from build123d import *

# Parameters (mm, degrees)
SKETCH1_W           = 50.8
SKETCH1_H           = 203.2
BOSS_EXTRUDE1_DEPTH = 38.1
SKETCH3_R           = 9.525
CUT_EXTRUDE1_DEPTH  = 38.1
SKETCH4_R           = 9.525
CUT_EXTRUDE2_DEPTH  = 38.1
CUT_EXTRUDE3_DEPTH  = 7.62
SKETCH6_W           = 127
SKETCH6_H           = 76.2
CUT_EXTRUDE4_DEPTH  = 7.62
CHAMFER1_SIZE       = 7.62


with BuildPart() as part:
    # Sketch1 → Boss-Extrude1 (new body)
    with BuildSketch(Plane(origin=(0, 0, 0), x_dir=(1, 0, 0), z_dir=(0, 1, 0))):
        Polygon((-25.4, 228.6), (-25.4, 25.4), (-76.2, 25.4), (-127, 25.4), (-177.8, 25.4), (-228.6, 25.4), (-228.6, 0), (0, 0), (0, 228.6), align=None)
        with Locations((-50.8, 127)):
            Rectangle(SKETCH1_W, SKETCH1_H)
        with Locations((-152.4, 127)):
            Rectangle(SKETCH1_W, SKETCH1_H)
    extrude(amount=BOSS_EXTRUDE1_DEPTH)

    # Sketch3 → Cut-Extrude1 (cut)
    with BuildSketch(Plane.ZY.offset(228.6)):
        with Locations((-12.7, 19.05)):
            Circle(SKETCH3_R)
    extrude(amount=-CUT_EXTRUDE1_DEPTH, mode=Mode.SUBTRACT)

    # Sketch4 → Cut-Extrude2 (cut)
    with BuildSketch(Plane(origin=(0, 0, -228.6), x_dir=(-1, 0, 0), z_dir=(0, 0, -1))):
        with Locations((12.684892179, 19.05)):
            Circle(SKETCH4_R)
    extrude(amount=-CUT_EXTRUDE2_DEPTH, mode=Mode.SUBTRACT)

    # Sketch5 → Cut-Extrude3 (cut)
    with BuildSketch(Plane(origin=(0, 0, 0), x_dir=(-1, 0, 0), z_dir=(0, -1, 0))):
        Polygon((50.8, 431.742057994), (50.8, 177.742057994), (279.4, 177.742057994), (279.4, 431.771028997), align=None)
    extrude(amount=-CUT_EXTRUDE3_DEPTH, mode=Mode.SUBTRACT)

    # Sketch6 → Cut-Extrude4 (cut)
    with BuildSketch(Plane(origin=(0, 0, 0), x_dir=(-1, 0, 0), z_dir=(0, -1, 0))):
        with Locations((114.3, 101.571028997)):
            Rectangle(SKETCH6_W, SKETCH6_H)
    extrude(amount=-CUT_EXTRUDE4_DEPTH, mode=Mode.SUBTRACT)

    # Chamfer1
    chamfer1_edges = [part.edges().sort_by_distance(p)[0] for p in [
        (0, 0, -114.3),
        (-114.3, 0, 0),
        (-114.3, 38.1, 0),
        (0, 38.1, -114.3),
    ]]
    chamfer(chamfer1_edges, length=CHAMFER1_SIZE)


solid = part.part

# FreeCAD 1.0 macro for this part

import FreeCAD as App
import Part
import Sketcher
from FreeCAD import Vector
Q = App.Units.Quantity


def edges_at(feature, points):
    """Names of the edges that pass closest to the given points."""
    edges = feature.Shape.Edges
    near = lambda p: min(range(len(edges)), key=lambda i: edges[i].distToShape(Part.Vertex(*p))[0])
    return sorted({f"Edge{near(p) + 1}" for p in points})


def add_polygon(sketch, points):
    """Adds a closed chain of lines whose ends are joined by coincident constraints."""
    first, n = sketch.GeometryCount, len(points)
    for a, b in zip(points, points[1:] + points[:1]):
        sketch.addGeometry(Part.LineSegment(App.Vector(*a, 0), App.Vector(*b, 0)), False)
    for i in range(n):
        sketch.addConstraint(Sketcher.Constraint("Coincident", first + i, 2, first + (i + 1) % n, 1))

doc = App.newDocument("Part")
params = doc.addObject("Spreadsheet::Sheet", "Params")
for row, (alias, value) in enumerate([
    ("sketch1_width", "2 in"),
    ("sketch1_width2", "9 in"),
    ("sketch1_height", "8 in"),
    ("pad1_length", "1.5 in"),
    ("sketch2_diameter", "0.75 in"),
    ("pocket1_length", "1.5 in"),
    ("sketch3_diameter", "0.75 in"),
    ("pocket2_length", "1.5 in"),
    ("sketch4_width", "9 in"),
    ("sketch4_height", "10 in"),
    ("pocket3_length", "0.3 in"),
    ("sketch5_width", "5 in"),
    ("sketch5_height", "3 in"),
    ("pocket4_length", "0.3 in"),
    ("chamfer_size", "0.3 in"),
], start=1):
    params.set(f"A{row}", alias)
    params.set(f"B{row}", "=" + value)
    params.setAlias(f"B{row}", alias)

body = doc.addObject("PartDesign::Body", "Body")

# Sketch on XZ plane
sketch1 = body.newObject("Sketcher::SketchObject", "Sketch")
sketch1.AttachmentSupport = (doc.getObject("XZ_Plane"), [""])
sketch1.MapMode = "FlatFace"
add_polygon(sketch1, [(-76, -25), (-127, -25), (-127, -229), (-178, -229), (-178, -25), (-229, -25), (-229, 0), (0, 0), (0, -229), (-76, -229)])  # lines 0-9
sketch1.addConstraint([
    Sketcher.Constraint("Horizontal", 0),
    Sketcher.Constraint("Vertical", 1),
    Sketcher.Constraint("Horizontal", 2),
    Sketcher.Constraint("Vertical", 3),
    Sketcher.Constraint("Horizontal", 4),
    Sketcher.Constraint("Vertical", 5),
    Sketcher.Constraint("Horizontal", 6),
    Sketcher.Constraint("Vertical", 7),
    Sketcher.Constraint("Horizontal", 8),
    Sketcher.Constraint("Vertical", 9),
    Sketcher.Constraint("Coincident", 6, 2, -1, 1),
    Sketcher.Constraint("Horizontal", 0, 2, 3, 2),
    Sketcher.Constraint("Horizontal", 2, 2, 7, 2),
    Sketcher.Constraint("Equal", 0, 2),
    Sketcher.Constraint("Equal", 2, 4),
    Sketcher.Constraint("Equal", 6, 7),
    Sketcher.Constraint("DistanceX", 0, 2, 0, 1, Q("2 in")),
    Sketcher.Constraint("DistanceX", 6, 1, 6, 2, Q("9 in")),
    Sketcher.Constraint("DistanceY", 1, 2, 1, 1, Q("8 in")),
])
sketch1.setExpression("Constraints[26]", "Params.sketch1_width")
sketch1.setExpression("Constraints[27]", "Params.sketch1_width2")
sketch1.setExpression("Constraints[28]", "Params.sketch1_height")
pad1 = body.newObject("PartDesign::Pad", "Pad")
pad1.Profile = sketch1
pad1.setExpression("Length", "Params.pad1_length")
pad1.Reversed = True

# Sketch on YZ plane
sketch2 = body.newObject("Sketcher::SketchObject", "Sketch001")
sketch2.AttachmentSupport = (doc.getObject("YZ_Plane"), [""])
sketch2.MapMode = "FlatFace"
sketch2.AttachmentOffset = App.Placement(Vector(0, 0, -9 * 25.4), App.Rotation())
sketch2.addGeometry(Part.Circle(Vector(19, -13, 0), Vector(0, 0, 1), 10), False)
sketch2.addConstraint([
    Sketcher.Constraint("Diameter", 0, Q("0.75 in")),
    Sketcher.Constraint("DistanceY", 0, 3, -1, 1, Q("0.5 in")),
    Sketcher.Constraint("DistanceX", -1, 1, 0, 3, Q("0.75 in")),
])
sketch2.setExpression("Constraints[0]", "Params.sketch2_diameter")
pocket1 = body.newObject("PartDesign::Pocket", "Pocket")
pocket1.Profile = sketch2
pocket1.setExpression("Length", "Params.pocket1_length")
pocket1.Reversed = True

# Sketch on XY plane
sketch3 = body.newObject("Sketcher::SketchObject", "Sketch002")
sketch3.AttachmentSupport = (doc.getObject("XY_Plane"), [""])
sketch3.MapMode = "FlatFace"
sketch3.AttachmentOffset = App.Placement(Vector(0, 0, -9 * 25.4), App.Rotation())
sketch3.addGeometry(Part.Circle(Vector(-13, 19, 0), Vector(0, 0, 1), 10), False)
sketch3.addConstraint([
    Sketcher.Constraint("Diameter", 0, Q("0.75 in")),
    Sketcher.Constraint("DistanceY", -1, 1, 0, 3, Q("0.75 in")),
    Sketcher.Constraint("DistanceX", 0, 3, -1, 1, Q("12.684892 mm")),
])
sketch3.setExpression("Constraints[0]", "Params.sketch3_diameter")
pocket2 = body.newObject("PartDesign::Pocket", "Pocket001")
pocket2.Profile = sketch3
pocket2.setExpression("Length", "Params.pocket2_length")
pocket2.Reversed = True

# Sketch on XZ plane
sketch4 = body.newObject("Sketcher::SketchObject", "Sketch003")
sketch4.AttachmentSupport = (doc.getObject("XZ_Plane"), [""])
sketch4.MapMode = "FlatFace"
add_polygon(sketch4, [(-51, -432), (-51, -178), (-279, -178), (-279, -432)])  # lines 0-3
sketch4.addConstraint([
    Sketcher.Constraint("Vertical", 0),
    Sketcher.Constraint("Horizontal", 1),
    Sketcher.Constraint("Vertical", 2),
    Sketcher.Constraint("DistanceX", 1, 2, 1, 1, Q("9 in")),
    Sketcher.Constraint("DistanceY", 0, 1, 0, 2, Q("10 in")),
    Sketcher.Constraint("DistanceX", 0, 2, -1, 1, Q("2 in")),
    Sketcher.Constraint("DistanceY", 2, 2, 2, 1, Q("254.028971 mm")),
    Sketcher.Constraint("DistanceY", 2, 2, -1, 1, Q("431.771029 mm")),
])
sketch4.setExpression("Constraints[7]", "Params.sketch4_width")
sketch4.setExpression("Constraints[8]", "Params.sketch4_height")
pocket3 = body.newObject("PartDesign::Pocket", "Pocket002")
pocket3.Profile = sketch4
pocket3.setExpression("Length", "Params.pocket3_length")

# Sketch on XZ plane
sketch5 = body.newObject("Sketcher::SketchObject", "Sketch004")
sketch5.AttachmentSupport = (doc.getObject("XZ_Plane"), [""])
sketch5.MapMode = "FlatFace"
add_polygon(sketch5, [(-51, -140), (-51, -63), (-178, -63), (-178, -140)])  # lines 0-3
sketch5.addConstraint([
    Sketcher.Constraint("Vertical", 0),
    Sketcher.Constraint("Horizontal", 1),
    Sketcher.Constraint("Vertical", 2),
    Sketcher.Constraint("Horizontal", 3),
    Sketcher.Constraint("DistanceX", 1, 2, 1, 1, Q("5 in")),
    Sketcher.Constraint("DistanceY", 0, 1, 0, 2, Q("3 in")),
    Sketcher.Constraint("DistanceX", 0, 2, -1, 1, Q("2 in")),
    Sketcher.Constraint("DistanceY", 0, 2, -1, 1, Q("63.471029 mm")),
])
sketch5.setExpression("Constraints[8]", "Params.sketch5_width")
sketch5.setExpression("Constraints[9]", "Params.sketch5_height")
pocket4 = body.newObject("PartDesign::Pocket", "Pocket003")
pocket4.Profile = sketch5
pocket4.setExpression("Length", "Params.pocket4_length")
doc.recompute()

chamfer = body.newObject("PartDesign::Chamfer", "Chamfer")
chamfer.Base = (pocket4, edges_at(pocket4, [
    (0, 0, -114.3),
    (-114.3, 0, 0),
    (-114.3, 38.1, 0),
    (0, 38.1, -114.3),
]))
chamfer.setExpression("Size", "Params.chamfer_size")

doc.recompute()
